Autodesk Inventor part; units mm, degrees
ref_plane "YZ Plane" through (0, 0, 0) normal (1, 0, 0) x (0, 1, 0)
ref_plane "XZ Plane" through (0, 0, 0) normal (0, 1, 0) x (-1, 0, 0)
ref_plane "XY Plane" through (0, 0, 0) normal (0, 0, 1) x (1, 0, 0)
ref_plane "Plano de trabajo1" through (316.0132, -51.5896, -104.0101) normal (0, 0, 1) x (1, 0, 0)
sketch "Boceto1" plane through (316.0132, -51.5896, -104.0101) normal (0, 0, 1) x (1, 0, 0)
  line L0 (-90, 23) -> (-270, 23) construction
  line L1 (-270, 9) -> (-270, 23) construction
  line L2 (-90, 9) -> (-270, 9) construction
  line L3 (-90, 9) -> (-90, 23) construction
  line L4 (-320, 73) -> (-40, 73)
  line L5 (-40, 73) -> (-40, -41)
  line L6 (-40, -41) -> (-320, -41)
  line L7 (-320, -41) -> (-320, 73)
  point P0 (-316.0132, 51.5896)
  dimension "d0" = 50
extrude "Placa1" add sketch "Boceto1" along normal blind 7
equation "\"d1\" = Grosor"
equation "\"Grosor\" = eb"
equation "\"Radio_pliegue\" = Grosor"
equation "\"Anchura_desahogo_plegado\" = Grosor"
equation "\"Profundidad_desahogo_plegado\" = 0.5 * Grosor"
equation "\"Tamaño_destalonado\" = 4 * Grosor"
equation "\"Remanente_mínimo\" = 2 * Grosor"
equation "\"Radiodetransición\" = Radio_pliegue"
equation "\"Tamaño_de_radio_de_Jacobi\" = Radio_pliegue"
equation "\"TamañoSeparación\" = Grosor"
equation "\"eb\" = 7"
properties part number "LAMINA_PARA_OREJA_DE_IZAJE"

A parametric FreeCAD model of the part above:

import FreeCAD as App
import Part
import Sketcher
Q = App.Units.Quantity

doc = App.newDocument("Part")
params = doc.addObject("Spreadsheet::Sheet", "Params")
for row, (alias, value) in enumerate([
    ("sketch1_width", "280 mm"),
    ("sketch1_height", "114 mm"),
    ("pad1_length", "7 mm"),
], start=1):
    params.set(f"A{row}", alias)
    params.set(f"B{row}", "=" + value)
    params.setAlias(f"B{row}", alias)

body = doc.addObject("PartDesign::Body", "Body")

sketch1 = body.newObject("Sketcher::SketchObject", "Sketch")
sketch1.AttachmentSupport = (doc.getObject("XY_Plane"), [""])
sketch1.MapMode = "FlatFace"
sketch1.AttachmentOffset = App.Placement(App.Vector(0, 0, -104.0101), App.Rotation())
sketch1.addGeometry(Part.LineSegment(App.Vector(276.0132, 21.4104, 0), App.Vector(-3.9868, 21.4104, 0)), False)
sketch1.addGeometry(Part.LineSegment(App.Vector(-3.9868, 21.4104, 0), App.Vector(-3.9868, -92.5896, 0)), False)
sketch1.addGeometry(Part.LineSegment(App.Vector(-3.9868, -92.5896, 0), App.Vector(276.0132, -92.5896, 0)), False)
sketch1.addGeometry(Part.LineSegment(App.Vector(276.0132, -92.5896, 0), App.Vector(276.0132, 21.4104, 0)), False)
sketch1.addConstraint(Sketcher.Constraint("Coincident", 0, 2, 1, 1))
sketch1.addConstraint(Sketcher.Constraint("Coincident", 1, 2, 2, 1))
sketch1.addConstraint(Sketcher.Constraint("Coincident", 2, 2, 3, 1))
sketch1.addConstraint(Sketcher.Constraint("Coincident", 3, 2, 0, 1))
sketch1.addConstraint(Sketcher.Constraint("Horizontal", 0))
sketch1.addConstraint(Sketcher.Constraint("Vertical", 1))
sketch1.addConstraint(Sketcher.Constraint("Horizontal", 2))
sketch1.addConstraint(Sketcher.Constraint("Vertical", 3))
sketch1.addConstraint(Sketcher.Constraint("DistanceX", 0, 2, 0, 1, Q("280 mm")))
sketch1.addConstraint(Sketcher.Constraint("DistanceY", 1, 2, 1, 1, Q("114 mm")))
sketch1.addConstraint(Sketcher.Constraint("DistanceX", 0, 2, -1, 1, Q("3.9868 mm")))
sketch1.addConstraint(Sketcher.Constraint("DistanceY", -1, 1, 0, 2, Q("21.4104 mm")))
sketch1.setExpression("Constraints[8]", "Params.sketch1_width")
sketch1.setExpression("Constraints[9]", "Params.sketch1_height")
pad1 = body.newObject("PartDesign::Pad", "Pad")
pad1.Profile = sketch1
pad1.setExpression("Length", "Params.pad1_length")

doc.recompute()
